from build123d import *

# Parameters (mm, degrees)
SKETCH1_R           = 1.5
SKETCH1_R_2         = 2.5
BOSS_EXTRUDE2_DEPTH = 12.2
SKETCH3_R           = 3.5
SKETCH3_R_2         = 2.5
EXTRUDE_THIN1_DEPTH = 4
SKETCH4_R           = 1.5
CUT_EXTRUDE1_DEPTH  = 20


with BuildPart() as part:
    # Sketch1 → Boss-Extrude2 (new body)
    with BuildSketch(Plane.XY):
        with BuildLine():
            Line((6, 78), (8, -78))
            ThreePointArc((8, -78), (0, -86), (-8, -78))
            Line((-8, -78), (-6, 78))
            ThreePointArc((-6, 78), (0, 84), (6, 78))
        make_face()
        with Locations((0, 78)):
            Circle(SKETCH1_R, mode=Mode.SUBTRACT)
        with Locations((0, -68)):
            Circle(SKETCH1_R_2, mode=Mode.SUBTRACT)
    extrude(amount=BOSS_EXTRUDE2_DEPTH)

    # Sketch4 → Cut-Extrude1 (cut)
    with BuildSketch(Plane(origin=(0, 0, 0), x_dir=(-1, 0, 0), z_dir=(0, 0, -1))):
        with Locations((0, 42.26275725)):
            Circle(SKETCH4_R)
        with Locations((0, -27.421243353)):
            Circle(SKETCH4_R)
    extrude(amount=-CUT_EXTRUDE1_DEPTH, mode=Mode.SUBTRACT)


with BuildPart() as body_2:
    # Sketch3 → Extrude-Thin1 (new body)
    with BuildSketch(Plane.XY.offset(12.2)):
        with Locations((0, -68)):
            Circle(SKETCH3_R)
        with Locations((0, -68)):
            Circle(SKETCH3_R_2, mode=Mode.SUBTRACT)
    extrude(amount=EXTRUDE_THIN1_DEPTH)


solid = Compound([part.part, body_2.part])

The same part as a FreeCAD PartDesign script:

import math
import FreeCAD as App
import Part
import Sketcher
from FreeCAD import Vector
Q = App.Units.Quantity

doc = App.newDocument("Part")
params = doc.addObject("Spreadsheet::Sheet", "Params")
for row, (alias, value) in enumerate([
    ("sketch1_diameter", "5 mm"),
    ("sketch1_diameter2", "3 mm"),
    ("sketch1_radius", "6 mm"),
    ("sketch1_radius2", "8 mm"),
    ("pad1_length", "12.2 mm"),
    ("sketch2_diameter", "3 mm"),
    ("pocket1_length", "20 mm"),
    ("sketch3_diameter", "7 mm"),
    ("sketch3_diameter2", "5 mm"),
    ("pad2_length", "4 mm"),
], start=1):
    params.set(f"A{row}", alias)
    params.set(f"B{row}", "=" + value)
    params.setAlias(f"B{row}", alias)

body = doc.addObject("PartDesign::Body", "Body")

# Sketch on XY plane
sketch1 = doc.addObject("Sketcher::SketchObject", "Sketch")
body.addObject(sketch1)
sketch1.AttachmentSupport = (doc.XY_Plane, [""])
sketch1.MapMode = "FlatFace"
sketch1.addGeometry([
    Part.LineSegment(Vector(8, -78, 0), Vector(6, 78, 0)),  # 0
    Part.ArcOfCircle(Part.Circle(Vector(0, 78, 0), Vector(0, 0, 1), 6), math.radians(0), math.radians(180)),  # 1
    Part.LineSegment(Vector(-6, 78, 0), Vector(-8, -78, 0)),  # 2
    Part.ArcOfCircle(Part.Circle(Vector(0, -78, 0), Vector(0, 0, 1), 8), math.radians(180), math.radians(360)),  # 3
    Part.Circle(Vector(0, -68, 0), Vector(0, 0, 1), 2.5),  # 4
    Part.Circle(Vector(0, 78, 0), Vector(0, 0, 1), 1.5),  # 5
], False)
sketch1.addConstraint([
    Sketcher.Constraint("Coincident", 0, 2, 1, 1),
    Sketcher.Constraint("Coincident", 1, 2, 2, 1),
    Sketcher.Constraint("Coincident", 2, 2, 3, 1),
    Sketcher.Constraint("Coincident", 3, 2, 0, 1),
    Sketcher.Constraint("Coincident", 5, 3, 1, 3),
    Sketcher.Constraint("Symmetric", 1, 3, 3, 3, -1, 1),
    Sketcher.Constraint("Symmetric", 0, 2, 1, 2, -2),
    Sketcher.Constraint("PointOnObject", 4, 3, -2),
    Sketcher.Constraint("Horizontal", 5, 3, 0, 2),
    Sketcher.Constraint("Horizontal", 3, 3, 2, 2),
    Sketcher.Constraint("Horizontal", 2, 2, 3, 2),
    Sketcher.Constraint("Diameter", 4, Q("5 mm")),
    Sketcher.Constraint("Diameter", 5, Q("3 mm")),
    Sketcher.Constraint("Radius", 1, Q("6 mm")),
    Sketcher.Constraint("Radius", 3, Q("8 mm")),
    Sketcher.Constraint("DistanceY", -1, 1, 1, 3, Q("78 mm")),
    Sketcher.Constraint("DistanceY", 4, 3, -1, 1, Q("68 mm")),
])
sketch1.setExpression("Constraints[11]", "Params.sketch1_diameter")
sketch1.setExpression("Constraints[12]", "Params.sketch1_diameter2")
sketch1.setExpression("Constraints[13]", "Params.sketch1_radius")
sketch1.setExpression("Constraints[14]", "Params.sketch1_radius2")
pad1 = doc.addObject("PartDesign::Pad", "Pad")
body.addObject(pad1)
pad1.Profile = sketch1
pad1.setExpression("Length", "Params.pad1_length")

# Sketch on XY plane
sketch2 = doc.addObject("Sketcher::SketchObject", "Sketch001")
body.addObject(sketch2)
sketch2.AttachmentSupport = (doc.XY_Plane, [""])
sketch2.MapMode = "FlatFace"
sketch2.addGeometry([
    Part.Circle(Vector(0, 42.3, 0), Vector(0, 0, 1), 1.5),
    Part.Circle(Vector(0, -27.4, 0), Vector(0, 0, 1), 1.5),
], False)
sketch2.addConstraint([
    Sketcher.Constraint("Equal", 0, 1),
    Sketcher.Constraint("PointOnObject", 0, 3, -2),
    Sketcher.Constraint("PointOnObject", 1, 3, -2),
    Sketcher.Constraint("Diameter", 0, Q("3 mm")),
    Sketcher.Constraint("DistanceY", 1, 3, 0, 3, Q("69.684001 mm")),
    Sketcher.Constraint("DistanceY", -1, 1, 0, 3, Q("42.262757 mm")),
])
sketch2.setExpression("Constraints[3]", "Params.sketch2_diameter")
pocket1 = doc.addObject("PartDesign::Pocket", "Pocket")
body.addObject(pocket1)
pocket1.Profile = sketch2
pocket1.setExpression("Length", "Params.pocket1_length")
pocket1.Reversed = True
body2 = doc.addObject("PartDesign::Body", "Body001")

# Sketch on XY plane
sketch3 = doc.addObject("Sketcher::SketchObject", "Sketch002")
body2.addObject(sketch3)
sketch3.AttachmentSupport = (doc.getObject("XY_Plane001"), [""])
sketch3.MapMode = "FlatFace"
sketch3.AttachmentOffset = App.Placement(Vector(0, 0, 12.2), App.Rotation())
sketch3.addGeometry([
    Part.Circle(Vector(0, -68, 0), Vector(0, 0, 1), 3.5),
    Part.Circle(Vector(0, -68, 0), Vector(0, 0, 1), 2.5),
], False)
sketch3.addConstraint([
    Sketcher.Constraint("Coincident", 1, 3, 0, 3),
    Sketcher.Constraint("PointOnObject", 0, 3, -2),
    Sketcher.Constraint("Diameter", 0, Q("7 mm")),
    Sketcher.Constraint("Diameter", 1, Q("5 mm")),
    Sketcher.Constraint("DistanceY", 0, 3, -1, 1, Q("68 mm")),
])
sketch3.setExpression("Constraints[2]", "Params.sketch3_diameter")
sketch3.setExpression("Constraints[3]", "Params.sketch3_diameter2")
pad2 = doc.addObject("PartDesign::Pad", "Pad001")
body2.addObject(pad2)
pad2.Profile = sketch3
pad2.setExpression("Length", "Params.pad2_length")

doc.recompute()
